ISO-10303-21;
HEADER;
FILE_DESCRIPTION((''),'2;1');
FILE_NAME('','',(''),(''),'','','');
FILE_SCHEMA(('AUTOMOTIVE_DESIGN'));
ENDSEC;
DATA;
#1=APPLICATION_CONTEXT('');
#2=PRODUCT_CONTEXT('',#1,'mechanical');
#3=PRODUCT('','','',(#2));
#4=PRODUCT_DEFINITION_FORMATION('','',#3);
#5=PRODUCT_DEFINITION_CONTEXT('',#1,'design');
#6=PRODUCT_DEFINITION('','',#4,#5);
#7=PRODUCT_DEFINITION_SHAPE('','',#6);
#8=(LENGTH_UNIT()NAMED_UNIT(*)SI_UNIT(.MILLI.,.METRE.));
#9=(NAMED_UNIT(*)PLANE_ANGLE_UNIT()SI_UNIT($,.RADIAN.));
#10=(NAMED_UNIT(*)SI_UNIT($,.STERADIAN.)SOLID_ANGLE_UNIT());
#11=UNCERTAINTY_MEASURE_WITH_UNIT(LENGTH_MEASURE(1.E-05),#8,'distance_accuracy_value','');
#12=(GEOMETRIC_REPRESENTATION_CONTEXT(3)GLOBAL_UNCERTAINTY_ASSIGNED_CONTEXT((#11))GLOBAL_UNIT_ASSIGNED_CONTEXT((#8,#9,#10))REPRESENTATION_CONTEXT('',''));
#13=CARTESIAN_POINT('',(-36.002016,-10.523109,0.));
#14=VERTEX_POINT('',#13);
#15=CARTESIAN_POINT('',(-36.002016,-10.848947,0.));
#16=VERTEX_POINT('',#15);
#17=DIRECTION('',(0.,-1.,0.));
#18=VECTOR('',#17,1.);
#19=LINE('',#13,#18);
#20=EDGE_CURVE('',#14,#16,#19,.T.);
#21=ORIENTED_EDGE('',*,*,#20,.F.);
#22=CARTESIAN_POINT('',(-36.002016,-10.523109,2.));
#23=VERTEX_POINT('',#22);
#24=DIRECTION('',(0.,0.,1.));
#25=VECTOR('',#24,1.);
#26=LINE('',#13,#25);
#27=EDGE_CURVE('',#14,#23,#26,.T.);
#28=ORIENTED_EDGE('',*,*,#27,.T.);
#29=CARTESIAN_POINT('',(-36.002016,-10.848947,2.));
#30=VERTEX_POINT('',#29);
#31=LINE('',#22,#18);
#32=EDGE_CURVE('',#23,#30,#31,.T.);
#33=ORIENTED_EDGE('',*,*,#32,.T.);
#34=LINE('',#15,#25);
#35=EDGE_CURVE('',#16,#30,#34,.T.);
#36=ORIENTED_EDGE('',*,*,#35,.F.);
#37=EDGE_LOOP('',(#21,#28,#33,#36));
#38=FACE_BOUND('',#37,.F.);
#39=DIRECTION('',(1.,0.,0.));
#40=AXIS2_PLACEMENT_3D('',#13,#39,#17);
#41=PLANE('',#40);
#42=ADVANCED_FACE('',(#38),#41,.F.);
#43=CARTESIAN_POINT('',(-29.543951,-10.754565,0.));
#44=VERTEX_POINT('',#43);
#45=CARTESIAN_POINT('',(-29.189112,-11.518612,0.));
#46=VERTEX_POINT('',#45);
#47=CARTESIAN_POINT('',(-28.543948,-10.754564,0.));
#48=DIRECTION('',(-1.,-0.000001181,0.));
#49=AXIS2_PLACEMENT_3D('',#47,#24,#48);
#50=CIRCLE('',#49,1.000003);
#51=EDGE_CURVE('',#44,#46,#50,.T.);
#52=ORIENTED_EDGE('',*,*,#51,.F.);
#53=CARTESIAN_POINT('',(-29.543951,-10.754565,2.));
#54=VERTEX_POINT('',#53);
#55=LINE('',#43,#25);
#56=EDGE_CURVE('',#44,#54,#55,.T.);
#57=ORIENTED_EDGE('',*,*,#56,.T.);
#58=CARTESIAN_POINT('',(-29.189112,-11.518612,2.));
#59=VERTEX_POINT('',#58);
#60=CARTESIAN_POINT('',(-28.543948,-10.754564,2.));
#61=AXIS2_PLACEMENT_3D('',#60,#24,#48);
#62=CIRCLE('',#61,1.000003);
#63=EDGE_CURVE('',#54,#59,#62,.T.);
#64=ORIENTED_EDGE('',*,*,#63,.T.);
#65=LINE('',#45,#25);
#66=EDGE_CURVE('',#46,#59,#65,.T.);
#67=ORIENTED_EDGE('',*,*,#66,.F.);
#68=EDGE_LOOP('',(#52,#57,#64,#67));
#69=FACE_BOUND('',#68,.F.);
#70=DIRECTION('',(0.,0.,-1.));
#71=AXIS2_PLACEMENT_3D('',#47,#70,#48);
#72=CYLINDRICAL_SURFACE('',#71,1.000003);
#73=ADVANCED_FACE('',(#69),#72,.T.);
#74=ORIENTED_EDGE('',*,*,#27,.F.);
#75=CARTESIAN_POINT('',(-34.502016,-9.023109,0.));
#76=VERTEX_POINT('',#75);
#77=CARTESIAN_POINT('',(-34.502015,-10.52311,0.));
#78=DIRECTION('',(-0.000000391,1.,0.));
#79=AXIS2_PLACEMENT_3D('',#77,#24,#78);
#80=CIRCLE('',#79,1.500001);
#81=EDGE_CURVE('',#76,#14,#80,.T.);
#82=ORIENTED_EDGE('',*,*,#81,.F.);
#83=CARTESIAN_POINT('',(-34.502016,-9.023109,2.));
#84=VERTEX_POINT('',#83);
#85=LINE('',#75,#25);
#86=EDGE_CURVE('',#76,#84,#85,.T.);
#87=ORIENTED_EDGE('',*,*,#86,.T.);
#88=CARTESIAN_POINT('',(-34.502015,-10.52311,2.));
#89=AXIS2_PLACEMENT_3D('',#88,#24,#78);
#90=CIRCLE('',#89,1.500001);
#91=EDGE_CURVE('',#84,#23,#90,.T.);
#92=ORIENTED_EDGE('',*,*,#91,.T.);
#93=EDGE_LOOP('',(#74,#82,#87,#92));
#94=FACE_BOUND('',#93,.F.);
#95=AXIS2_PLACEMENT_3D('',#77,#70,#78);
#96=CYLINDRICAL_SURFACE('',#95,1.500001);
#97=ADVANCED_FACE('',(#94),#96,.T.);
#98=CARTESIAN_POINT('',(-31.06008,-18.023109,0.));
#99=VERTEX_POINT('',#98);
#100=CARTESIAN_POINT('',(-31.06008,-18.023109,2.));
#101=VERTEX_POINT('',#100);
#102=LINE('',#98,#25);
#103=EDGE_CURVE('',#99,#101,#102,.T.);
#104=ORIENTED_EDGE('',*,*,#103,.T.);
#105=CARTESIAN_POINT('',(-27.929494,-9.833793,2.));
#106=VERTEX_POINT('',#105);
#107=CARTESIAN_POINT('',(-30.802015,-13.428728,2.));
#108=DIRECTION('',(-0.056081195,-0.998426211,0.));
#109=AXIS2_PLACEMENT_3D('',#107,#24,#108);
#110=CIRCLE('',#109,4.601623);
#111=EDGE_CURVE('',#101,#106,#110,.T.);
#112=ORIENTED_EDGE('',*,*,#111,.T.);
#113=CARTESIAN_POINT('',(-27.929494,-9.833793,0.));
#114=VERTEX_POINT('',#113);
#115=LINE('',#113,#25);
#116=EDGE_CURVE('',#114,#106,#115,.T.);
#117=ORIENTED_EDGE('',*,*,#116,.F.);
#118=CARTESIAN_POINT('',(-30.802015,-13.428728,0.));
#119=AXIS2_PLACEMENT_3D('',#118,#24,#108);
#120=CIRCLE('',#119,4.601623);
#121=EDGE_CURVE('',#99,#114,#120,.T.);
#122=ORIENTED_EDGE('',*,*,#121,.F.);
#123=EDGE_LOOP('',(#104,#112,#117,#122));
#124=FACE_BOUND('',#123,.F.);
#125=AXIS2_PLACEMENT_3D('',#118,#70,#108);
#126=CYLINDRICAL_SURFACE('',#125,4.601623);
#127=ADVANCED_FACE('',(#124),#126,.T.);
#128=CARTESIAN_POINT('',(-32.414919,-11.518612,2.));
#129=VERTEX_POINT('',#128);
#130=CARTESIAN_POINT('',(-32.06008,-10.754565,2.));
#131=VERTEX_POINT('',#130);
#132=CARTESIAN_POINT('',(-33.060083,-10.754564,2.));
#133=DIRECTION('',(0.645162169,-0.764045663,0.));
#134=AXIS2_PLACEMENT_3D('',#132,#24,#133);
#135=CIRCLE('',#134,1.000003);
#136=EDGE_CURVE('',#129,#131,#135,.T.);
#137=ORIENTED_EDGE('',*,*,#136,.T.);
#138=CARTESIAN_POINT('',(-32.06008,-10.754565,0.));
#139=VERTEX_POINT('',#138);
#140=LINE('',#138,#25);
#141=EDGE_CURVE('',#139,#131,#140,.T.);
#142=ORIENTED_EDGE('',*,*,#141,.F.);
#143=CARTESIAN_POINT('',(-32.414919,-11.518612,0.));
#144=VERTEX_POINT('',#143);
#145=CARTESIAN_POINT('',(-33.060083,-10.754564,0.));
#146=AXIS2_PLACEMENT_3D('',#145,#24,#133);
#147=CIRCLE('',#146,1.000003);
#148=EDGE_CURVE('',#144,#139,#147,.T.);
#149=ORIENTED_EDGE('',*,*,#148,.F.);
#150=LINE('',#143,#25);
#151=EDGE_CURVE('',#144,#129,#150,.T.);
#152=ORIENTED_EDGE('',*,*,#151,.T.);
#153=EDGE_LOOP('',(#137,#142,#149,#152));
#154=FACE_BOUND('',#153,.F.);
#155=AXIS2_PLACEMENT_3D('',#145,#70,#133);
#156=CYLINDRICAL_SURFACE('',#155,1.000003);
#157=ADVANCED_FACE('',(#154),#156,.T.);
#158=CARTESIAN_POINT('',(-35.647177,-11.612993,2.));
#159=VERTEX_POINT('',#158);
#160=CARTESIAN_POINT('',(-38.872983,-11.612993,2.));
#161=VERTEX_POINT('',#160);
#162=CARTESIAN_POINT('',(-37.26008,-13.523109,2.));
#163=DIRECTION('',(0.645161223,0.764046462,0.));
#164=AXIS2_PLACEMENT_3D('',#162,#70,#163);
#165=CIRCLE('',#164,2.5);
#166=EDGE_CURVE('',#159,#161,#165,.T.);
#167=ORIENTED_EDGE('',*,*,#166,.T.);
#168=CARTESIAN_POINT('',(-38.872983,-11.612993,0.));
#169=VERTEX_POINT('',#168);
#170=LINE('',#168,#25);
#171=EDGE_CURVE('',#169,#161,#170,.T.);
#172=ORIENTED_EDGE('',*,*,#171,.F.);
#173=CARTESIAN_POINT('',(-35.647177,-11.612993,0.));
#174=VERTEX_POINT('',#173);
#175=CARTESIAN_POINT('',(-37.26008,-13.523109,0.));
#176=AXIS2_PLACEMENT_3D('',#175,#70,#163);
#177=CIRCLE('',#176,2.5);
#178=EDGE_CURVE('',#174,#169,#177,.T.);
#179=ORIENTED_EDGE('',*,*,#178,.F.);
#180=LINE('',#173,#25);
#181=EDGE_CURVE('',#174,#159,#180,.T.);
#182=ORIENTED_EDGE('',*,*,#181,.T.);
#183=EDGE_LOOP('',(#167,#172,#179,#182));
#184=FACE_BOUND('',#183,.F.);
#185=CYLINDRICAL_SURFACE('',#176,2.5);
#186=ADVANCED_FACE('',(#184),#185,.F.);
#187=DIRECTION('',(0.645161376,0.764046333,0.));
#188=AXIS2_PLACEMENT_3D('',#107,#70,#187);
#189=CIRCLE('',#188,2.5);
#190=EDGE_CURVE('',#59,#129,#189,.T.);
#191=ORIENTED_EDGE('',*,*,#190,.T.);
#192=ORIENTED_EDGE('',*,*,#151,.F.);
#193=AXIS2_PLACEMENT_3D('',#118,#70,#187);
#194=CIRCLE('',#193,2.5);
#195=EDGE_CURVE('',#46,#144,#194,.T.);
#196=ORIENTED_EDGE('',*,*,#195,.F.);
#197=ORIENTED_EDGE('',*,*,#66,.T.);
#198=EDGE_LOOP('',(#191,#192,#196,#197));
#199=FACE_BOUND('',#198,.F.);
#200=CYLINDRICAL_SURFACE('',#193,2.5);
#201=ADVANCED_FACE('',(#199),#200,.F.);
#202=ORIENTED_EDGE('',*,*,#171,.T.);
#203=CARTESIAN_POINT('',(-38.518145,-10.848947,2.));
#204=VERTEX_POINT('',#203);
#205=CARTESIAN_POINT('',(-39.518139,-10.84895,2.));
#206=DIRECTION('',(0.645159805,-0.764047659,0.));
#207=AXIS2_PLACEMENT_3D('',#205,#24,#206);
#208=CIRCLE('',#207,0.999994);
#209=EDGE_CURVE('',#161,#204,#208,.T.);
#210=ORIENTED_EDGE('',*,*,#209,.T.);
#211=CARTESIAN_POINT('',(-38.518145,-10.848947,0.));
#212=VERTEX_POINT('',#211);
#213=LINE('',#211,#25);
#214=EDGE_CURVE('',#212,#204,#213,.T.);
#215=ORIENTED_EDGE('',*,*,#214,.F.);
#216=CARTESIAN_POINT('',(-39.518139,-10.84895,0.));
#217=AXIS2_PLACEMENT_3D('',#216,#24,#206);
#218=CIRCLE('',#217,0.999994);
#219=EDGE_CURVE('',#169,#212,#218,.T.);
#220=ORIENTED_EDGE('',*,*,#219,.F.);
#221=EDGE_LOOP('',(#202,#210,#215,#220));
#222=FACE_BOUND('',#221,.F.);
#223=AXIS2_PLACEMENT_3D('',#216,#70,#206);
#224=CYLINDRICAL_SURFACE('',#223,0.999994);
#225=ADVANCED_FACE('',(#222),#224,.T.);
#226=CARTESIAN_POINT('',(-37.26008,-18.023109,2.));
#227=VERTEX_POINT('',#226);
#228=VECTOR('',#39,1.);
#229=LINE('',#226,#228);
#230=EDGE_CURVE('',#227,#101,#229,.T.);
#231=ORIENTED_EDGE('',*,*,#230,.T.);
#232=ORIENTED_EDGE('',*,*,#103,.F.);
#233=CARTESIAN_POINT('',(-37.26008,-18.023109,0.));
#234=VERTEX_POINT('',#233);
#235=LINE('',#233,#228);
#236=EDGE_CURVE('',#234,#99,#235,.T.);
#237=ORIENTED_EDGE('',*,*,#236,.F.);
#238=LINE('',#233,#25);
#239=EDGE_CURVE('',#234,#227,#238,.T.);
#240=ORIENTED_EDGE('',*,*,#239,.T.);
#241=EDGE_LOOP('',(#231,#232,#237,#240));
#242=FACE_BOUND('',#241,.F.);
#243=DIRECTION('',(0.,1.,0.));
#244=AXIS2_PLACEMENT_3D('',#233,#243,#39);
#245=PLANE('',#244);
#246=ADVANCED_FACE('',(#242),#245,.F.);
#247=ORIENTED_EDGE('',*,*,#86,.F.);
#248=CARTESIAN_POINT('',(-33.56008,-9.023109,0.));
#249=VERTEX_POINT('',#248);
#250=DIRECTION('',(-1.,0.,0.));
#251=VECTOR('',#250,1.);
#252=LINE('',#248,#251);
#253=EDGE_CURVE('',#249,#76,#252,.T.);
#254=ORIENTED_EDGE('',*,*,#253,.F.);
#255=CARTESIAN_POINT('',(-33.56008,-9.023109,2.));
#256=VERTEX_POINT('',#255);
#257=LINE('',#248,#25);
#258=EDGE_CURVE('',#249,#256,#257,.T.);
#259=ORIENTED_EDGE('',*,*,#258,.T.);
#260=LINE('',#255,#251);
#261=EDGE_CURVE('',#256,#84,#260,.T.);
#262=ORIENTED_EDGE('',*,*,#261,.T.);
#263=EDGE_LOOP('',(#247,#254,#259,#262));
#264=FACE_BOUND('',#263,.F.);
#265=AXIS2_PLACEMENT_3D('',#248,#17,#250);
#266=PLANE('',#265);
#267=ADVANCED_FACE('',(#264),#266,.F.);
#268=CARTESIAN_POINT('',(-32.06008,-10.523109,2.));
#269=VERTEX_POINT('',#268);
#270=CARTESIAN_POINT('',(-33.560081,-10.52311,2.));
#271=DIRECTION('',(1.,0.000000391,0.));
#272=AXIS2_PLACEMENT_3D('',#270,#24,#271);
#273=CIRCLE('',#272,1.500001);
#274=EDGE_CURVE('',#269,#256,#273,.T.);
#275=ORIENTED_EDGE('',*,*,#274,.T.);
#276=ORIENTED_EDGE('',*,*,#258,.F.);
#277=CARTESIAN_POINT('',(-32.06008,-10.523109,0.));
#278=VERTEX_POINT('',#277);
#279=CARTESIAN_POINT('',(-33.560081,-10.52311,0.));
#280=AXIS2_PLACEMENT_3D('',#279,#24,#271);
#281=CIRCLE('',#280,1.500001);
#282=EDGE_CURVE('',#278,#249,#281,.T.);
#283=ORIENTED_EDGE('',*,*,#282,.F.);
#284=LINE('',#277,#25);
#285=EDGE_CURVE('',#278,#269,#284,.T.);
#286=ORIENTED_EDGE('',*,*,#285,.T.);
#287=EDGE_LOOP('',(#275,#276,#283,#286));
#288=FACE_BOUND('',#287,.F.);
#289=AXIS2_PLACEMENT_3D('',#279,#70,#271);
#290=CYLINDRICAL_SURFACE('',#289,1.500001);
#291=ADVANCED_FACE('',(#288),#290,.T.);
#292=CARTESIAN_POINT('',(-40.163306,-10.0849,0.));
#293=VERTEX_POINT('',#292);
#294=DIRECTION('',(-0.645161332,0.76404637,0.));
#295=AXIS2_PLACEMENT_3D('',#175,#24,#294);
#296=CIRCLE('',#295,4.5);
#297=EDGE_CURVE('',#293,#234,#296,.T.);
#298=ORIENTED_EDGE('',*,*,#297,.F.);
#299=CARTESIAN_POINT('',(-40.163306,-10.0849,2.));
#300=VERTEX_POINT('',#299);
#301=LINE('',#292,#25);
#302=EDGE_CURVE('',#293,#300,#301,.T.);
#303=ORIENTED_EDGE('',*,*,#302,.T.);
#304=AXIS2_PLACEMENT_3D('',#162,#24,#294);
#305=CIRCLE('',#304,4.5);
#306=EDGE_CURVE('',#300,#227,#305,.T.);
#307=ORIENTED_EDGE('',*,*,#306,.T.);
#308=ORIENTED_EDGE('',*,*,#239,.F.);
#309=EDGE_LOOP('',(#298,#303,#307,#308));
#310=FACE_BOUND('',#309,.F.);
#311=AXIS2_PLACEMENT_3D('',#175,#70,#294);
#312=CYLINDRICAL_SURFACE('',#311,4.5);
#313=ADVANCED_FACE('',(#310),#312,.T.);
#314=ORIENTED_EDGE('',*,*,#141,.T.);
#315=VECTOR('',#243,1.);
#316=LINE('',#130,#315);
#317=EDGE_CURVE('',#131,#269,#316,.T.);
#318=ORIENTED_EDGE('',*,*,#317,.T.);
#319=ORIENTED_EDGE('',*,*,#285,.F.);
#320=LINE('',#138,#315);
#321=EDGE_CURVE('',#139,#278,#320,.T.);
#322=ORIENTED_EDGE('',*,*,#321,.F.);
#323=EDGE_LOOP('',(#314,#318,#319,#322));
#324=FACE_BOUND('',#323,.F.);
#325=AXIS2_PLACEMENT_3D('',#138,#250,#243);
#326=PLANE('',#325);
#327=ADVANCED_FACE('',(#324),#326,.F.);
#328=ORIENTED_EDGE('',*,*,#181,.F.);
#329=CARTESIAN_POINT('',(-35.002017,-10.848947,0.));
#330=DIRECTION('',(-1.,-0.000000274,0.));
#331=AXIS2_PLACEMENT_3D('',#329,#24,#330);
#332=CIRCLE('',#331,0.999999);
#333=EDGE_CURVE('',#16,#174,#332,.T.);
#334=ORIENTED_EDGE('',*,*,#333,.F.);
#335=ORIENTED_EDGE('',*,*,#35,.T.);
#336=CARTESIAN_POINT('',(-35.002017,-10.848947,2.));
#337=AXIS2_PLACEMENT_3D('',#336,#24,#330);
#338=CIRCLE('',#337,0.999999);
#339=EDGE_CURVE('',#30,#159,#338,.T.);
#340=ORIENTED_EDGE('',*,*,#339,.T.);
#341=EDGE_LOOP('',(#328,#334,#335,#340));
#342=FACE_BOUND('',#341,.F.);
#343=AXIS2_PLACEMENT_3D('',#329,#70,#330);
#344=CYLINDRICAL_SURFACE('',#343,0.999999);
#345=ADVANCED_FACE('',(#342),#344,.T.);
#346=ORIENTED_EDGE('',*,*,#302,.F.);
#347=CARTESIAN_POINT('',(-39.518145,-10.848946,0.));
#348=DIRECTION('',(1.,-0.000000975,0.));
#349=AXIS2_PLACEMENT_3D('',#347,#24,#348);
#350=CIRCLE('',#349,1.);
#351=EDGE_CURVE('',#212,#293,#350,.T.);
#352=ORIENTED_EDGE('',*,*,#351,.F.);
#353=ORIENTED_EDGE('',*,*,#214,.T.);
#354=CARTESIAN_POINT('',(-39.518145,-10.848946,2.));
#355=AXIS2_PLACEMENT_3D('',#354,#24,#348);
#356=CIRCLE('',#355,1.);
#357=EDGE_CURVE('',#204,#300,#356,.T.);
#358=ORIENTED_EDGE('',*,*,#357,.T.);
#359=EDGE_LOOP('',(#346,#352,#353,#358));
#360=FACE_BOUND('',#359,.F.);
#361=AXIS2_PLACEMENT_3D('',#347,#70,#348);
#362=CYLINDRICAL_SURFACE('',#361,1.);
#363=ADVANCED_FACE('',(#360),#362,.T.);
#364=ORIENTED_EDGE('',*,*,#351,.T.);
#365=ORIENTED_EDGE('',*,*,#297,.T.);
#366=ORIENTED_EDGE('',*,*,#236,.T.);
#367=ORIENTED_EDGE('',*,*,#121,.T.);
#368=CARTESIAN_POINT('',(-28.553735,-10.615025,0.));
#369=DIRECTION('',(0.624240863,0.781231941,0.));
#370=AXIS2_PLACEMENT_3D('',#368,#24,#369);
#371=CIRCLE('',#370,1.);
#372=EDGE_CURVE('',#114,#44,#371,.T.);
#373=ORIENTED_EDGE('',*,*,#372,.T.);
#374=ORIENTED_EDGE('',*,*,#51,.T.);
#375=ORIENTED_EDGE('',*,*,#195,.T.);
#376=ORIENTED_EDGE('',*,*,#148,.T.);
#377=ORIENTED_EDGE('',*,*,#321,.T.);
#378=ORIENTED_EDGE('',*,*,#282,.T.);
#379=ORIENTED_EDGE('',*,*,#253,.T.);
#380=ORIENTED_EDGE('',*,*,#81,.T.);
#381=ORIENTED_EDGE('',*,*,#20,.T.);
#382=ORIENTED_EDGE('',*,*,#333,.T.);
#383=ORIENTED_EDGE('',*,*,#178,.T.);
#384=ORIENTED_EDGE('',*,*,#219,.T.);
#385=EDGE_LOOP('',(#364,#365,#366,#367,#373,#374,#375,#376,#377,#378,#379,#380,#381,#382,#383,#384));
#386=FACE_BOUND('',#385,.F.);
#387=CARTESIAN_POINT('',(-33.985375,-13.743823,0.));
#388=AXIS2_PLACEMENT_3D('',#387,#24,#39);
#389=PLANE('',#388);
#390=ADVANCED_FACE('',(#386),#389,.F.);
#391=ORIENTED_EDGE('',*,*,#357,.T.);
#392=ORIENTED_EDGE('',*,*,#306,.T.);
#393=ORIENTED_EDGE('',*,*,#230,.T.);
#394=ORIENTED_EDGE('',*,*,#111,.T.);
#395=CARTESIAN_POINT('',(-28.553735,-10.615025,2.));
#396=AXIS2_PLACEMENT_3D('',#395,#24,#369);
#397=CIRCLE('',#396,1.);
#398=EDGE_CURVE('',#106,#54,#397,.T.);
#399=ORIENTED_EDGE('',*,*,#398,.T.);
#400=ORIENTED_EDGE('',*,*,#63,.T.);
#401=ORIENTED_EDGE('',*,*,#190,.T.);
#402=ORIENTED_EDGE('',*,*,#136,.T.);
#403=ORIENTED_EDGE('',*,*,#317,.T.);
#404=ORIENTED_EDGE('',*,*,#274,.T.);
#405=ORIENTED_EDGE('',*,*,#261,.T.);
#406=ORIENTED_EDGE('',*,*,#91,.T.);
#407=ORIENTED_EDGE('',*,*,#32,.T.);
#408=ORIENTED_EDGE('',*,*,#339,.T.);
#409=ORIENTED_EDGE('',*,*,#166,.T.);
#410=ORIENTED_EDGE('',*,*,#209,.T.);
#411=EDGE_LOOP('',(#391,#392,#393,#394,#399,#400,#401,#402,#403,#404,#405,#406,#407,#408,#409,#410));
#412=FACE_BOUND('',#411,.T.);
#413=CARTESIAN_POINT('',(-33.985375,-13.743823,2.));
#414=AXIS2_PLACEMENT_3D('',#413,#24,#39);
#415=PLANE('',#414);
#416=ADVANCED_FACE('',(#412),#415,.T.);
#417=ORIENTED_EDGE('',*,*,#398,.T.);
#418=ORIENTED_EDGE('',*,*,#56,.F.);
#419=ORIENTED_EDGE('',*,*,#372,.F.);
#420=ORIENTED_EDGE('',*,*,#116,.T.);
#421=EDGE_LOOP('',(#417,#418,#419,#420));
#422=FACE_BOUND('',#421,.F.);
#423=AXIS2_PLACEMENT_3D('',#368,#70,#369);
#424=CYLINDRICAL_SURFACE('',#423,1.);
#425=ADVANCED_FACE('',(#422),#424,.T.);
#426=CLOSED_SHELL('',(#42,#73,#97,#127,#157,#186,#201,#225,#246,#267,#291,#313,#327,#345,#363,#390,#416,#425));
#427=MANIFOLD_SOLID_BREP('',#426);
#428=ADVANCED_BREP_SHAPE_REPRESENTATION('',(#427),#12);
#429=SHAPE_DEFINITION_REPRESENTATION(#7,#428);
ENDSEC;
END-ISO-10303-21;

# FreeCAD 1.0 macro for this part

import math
import FreeCAD as App
import Part
import Sketcher
from FreeCAD import Vector

doc = App.newDocument("Part")
body = doc.addObject("PartDesign::Body", "Body")

# Sketch on XY plane
sketch1 = body.newObject("Sketcher::SketchObject", "Sketch")
sketch1.AttachmentSupport = (doc.getObject("XY_Plane"), [""])
sketch1.MapMode = "FlatFace"
sketch1.addGeometry([
    Part.ArcOfCircle(Part.Circle(Vector(-37.26, -13.52, 0), Vector(0, 0, 1), 2.5), math.radians(130), math.radians(410)),  # 0
    Part.ArcOfCircle(Part.Circle(Vector(-39.52, -10.85, 0), Vector(0, 0, 1), 1), math.radians(-50), math.radians(0)),  # 1
    Part.ArcOfCircle(Part.Circle(Vector(-39.52, -10.85, 0), Vector(0, 0, 1), 1), math.radians(0), math.radians(130)),  # 2
    Part.ArcOfCircle(Part.Circle(Vector(-37.26, -13.52, 0), Vector(0, 0, 1), 4.5), math.radians(130), math.radians(270)),  # 3
    Part.LineSegment(Vector(-37.26, -18.02, 0), Vector(-31.06, -18.02, 0)),  # 4
    Part.ArcOfCircle(Part.Circle(Vector(-30.8, -13.43, 0), Vector(0, 0, 1), 4.6), math.radians(-93), math.radians(51)),  # 5
    Part.ArcOfCircle(Part.Circle(Vector(-28.55, -10.62, 0), Vector(0, 0, 1), 1), math.radians(51), math.radians(188)),  # 6
    Part.ArcOfCircle(Part.Circle(Vector(-28.54, -10.75, 0), Vector(0, 0, 1), 1), math.radians(-180), math.radians(-130)),  # 7
    Part.ArcOfCircle(Part.Circle(Vector(-30.8, -13.43, 0), Vector(0, 0, 1), 2.5), math.radians(130), math.radians(410)),  # 8
    Part.ArcOfCircle(Part.Circle(Vector(-33.06, -10.75, 0), Vector(0, 0, 1), 1), math.radians(-50), math.radians(0)),  # 9
    Part.LineSegment(Vector(-32.06, -10.75, 0), Vector(-32.06, -10.52, 0)),  # 10
    Part.ArcOfCircle(Part.Circle(Vector(-33.56, -10.52, 0), Vector(0, 0, 1), 1.5), math.radians(0), math.radians(90)),  # 11
    Part.LineSegment(Vector(-33.56, -9.02, 0), Vector(-34.5, -9.02, 0)),  # 12
    Part.ArcOfCircle(Part.Circle(Vector(-34.5, -10.52, 0), Vector(0, 0, 1), 1.5), math.radians(90), math.radians(180)),  # 13
    Part.LineSegment(Vector(-36, -10.52, 0), Vector(-36, -10.85, 0)),  # 14
    Part.ArcOfCircle(Part.Circle(Vector(-35, -10.85, 0), Vector(0, 0, 1), 1), math.radians(-180), math.radians(-130)),  # 15
], False)
sketch1.addConstraint([
    Sketcher.Constraint("Tangent", 0, 1, 1, 1),
    Sketcher.Constraint("Coincident", 1, 2, 2, 1),
    Sketcher.Constraint("Tangent", 2, 2, 3, 1),
    Sketcher.Constraint("Tangent", 3, 2, 4, 1),
    Sketcher.Constraint("Coincident", 4, 2, 5, 1),
    Sketcher.Constraint("Tangent", 5, 2, 6, 1),
    Sketcher.Constraint("Coincident", 6, 2, 7, 1),
    Sketcher.Constraint("Tangent", 7, 2, 8, 2),
    Sketcher.Constraint("Tangent", 8, 1, 9, 1),
    Sketcher.Constraint("Tangent", 9, 2, 10, 1),
    Sketcher.Constraint("Tangent", 10, 2, 11, 1),
    Sketcher.Constraint("Tangent", 11, 2, 12, 1),
    Sketcher.Constraint("Tangent", 12, 2, 13, 1),
    Sketcher.Constraint("Tangent", 13, 2, 14, 1),
    Sketcher.Constraint("Tangent", 14, 2, 15, 1),
    Sketcher.Constraint("Tangent", 15, 2, 0, 2),
    Sketcher.Constraint("Horizontal", 4),
    Sketcher.Constraint("Vertical", 10),
    Sketcher.Constraint("Horizontal", 12),
    Sketcher.Constraint("Vertical", 14),
    Sketcher.Constraint("Coincident", 2, 3, 1, 3),
    Sketcher.Constraint("Coincident", 3, 3, 0, 3),
    Sketcher.Constraint("Coincident", 8, 3, 5, 3),
    Sketcher.Constraint("Equal", 2, 6),
    Sketcher.Constraint("Equal", 0, 8),
    Sketcher.Constraint("Equal", 7, 9),
    Sketcher.Constraint("Equal", 11, 13),
    Sketcher.Constraint("Equal", 6, 15),
    Sketcher.Constraint("Horizontal", 7, 3, 9, 3),
    Sketcher.Constraint("Horizontal", 2, 3, 15, 3),
    Sketcher.Constraint("Horizontal", 15, 3, 1, 2),
    Sketcher.Constraint("Horizontal", 9, 3, 6, 2),
    Sketcher.Constraint("Radius", 2, 1.0),
    Sketcher.Constraint("Radius", 0, 2.5),
    Sketcher.Constraint("Radius", 11, 1.500001),
    Sketcher.Constraint("DistanceX", 4, 1, 4, 2, 6.2),
    Sketcher.Constraint("DistanceY", 3, 3, 11, 3, 2.999999),
    Sketcher.Constraint("DistanceX", 3, 3, 11, 3, 3.699999),
    Sketcher.Constraint("DistanceX", 13, 3, 5, 3, 3.7),
    Sketcher.Constraint("Radius", 5, 4.601623),
    Sketcher.Constraint("Radius", 7, 1.000003),
    Sketcher.Constraint("DistanceY", 14, 2, 14, 1, 0.325838),
    Sketcher.Constraint("DistanceY", 2, 2, -1, 1, 10.0849),
    Sketcher.Constraint("DistanceX", 0, 3, -1, 1, 37.26008),
])
pad1 = body.newObject("PartDesign::Pad", "Pad")
pad1.Profile = sketch1
pad1.Length = 2

doc.recompute()
